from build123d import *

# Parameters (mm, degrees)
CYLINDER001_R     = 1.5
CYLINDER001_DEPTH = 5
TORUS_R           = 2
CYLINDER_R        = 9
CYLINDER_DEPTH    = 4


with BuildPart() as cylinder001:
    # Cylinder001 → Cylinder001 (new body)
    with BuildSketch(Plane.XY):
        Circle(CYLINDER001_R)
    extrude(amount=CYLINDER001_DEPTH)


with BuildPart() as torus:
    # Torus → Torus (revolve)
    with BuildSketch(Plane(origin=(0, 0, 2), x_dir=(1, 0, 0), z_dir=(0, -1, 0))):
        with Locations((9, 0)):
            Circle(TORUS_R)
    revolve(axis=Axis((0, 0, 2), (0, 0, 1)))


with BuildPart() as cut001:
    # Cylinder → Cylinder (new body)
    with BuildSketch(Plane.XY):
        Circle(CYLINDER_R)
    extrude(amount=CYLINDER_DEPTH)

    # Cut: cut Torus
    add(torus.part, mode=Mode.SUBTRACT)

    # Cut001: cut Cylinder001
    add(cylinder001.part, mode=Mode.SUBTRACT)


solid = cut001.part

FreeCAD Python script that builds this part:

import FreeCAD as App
import Part
import Sketcher

V = App.Vector
Q = App.Units.Quantity

doc = App.newDocument("Part")
body = doc.addObject("PartDesign::Body", "Body")

# Sketch on XY plane
sketch1 = body.newObject("Sketcher::SketchObject", "Sketch")
sketch1.AttachmentSupport = (doc.getObject("XY_Plane"), [""])
sketch1.MapMode = "FlatFace"
sketch1.addGeometry(Part.Circle(V(0, 0, 0), V(0, 0, 1), 1.5), False)
sketch1.addConstraint([
    Sketcher.Constraint("Coincident", 0, 3, -1, 1),
    Sketcher.Constraint("Diameter", 0, Q("3 mm")),
])
pad1 = body.newObject("PartDesign::Pad", "Pad")
pad1.Profile = sketch1
pad1.Length = 5
body2 = doc.addObject("PartDesign::Body", "Body001")

# Sketch on XZ plane
sketch2 = body2.newObject("Sketcher::SketchObject", "Sketch001")
sketch2.AttachmentSupport = (doc.getObject("XZ_Plane001"), [""])
sketch2.MapMode = "FlatFace"
sketch2.addGeometry(Part.Circle(V(9, 2, 0), V(0, 0, 1), 2), False)
sketch2.addConstraint([
    Sketcher.Constraint("Diameter", 0, Q("4 mm")),
    Sketcher.Constraint("DistanceX", -1, 1, 0, 3, Q("9 mm")),
    Sketcher.Constraint("DistanceY", -1, 1, 0, 3, Q("2 mm")),
])
revolution = body2.newObject("PartDesign::Revolution", "Revolution")
revolution.Profile = sketch2
revolution.ReferenceAxis = (sketch2, ["V_Axis"])
revolution.Angle = 360
body3 = doc.addObject("PartDesign::Body", "Body002")

# Sketch on XY plane
sketch3 = body3.newObject("Sketcher::SketchObject", "Sketch002")
sketch3.AttachmentSupport = (doc.getObject("XY_Plane002"), [""])
sketch3.MapMode = "FlatFace"
sketch3.addGeometry(Part.Circle(V(0, 0, 0), V(0, 0, 1), 9), False)
sketch3.addConstraint([
    Sketcher.Constraint("Coincident", 0, 3, -1, 1),
    Sketcher.Constraint("Diameter", 0, Q("18 mm")),
])
pad2 = body3.newObject("PartDesign::Pad", "Pad001")
pad2.Profile = sketch3
pad2.Length = 4
doc.recompute()

boolean = body3.newObject("PartDesign::Boolean", "Boolean")
boolean.Type = "Cut"
boolean.addObjects([body2])
doc.recompute()

boolean2 = body3.newObject("PartDesign::Boolean", "Boolean001")
boolean2.Type = "Cut"
boolean2.addObjects([body])

doc.recompute()
